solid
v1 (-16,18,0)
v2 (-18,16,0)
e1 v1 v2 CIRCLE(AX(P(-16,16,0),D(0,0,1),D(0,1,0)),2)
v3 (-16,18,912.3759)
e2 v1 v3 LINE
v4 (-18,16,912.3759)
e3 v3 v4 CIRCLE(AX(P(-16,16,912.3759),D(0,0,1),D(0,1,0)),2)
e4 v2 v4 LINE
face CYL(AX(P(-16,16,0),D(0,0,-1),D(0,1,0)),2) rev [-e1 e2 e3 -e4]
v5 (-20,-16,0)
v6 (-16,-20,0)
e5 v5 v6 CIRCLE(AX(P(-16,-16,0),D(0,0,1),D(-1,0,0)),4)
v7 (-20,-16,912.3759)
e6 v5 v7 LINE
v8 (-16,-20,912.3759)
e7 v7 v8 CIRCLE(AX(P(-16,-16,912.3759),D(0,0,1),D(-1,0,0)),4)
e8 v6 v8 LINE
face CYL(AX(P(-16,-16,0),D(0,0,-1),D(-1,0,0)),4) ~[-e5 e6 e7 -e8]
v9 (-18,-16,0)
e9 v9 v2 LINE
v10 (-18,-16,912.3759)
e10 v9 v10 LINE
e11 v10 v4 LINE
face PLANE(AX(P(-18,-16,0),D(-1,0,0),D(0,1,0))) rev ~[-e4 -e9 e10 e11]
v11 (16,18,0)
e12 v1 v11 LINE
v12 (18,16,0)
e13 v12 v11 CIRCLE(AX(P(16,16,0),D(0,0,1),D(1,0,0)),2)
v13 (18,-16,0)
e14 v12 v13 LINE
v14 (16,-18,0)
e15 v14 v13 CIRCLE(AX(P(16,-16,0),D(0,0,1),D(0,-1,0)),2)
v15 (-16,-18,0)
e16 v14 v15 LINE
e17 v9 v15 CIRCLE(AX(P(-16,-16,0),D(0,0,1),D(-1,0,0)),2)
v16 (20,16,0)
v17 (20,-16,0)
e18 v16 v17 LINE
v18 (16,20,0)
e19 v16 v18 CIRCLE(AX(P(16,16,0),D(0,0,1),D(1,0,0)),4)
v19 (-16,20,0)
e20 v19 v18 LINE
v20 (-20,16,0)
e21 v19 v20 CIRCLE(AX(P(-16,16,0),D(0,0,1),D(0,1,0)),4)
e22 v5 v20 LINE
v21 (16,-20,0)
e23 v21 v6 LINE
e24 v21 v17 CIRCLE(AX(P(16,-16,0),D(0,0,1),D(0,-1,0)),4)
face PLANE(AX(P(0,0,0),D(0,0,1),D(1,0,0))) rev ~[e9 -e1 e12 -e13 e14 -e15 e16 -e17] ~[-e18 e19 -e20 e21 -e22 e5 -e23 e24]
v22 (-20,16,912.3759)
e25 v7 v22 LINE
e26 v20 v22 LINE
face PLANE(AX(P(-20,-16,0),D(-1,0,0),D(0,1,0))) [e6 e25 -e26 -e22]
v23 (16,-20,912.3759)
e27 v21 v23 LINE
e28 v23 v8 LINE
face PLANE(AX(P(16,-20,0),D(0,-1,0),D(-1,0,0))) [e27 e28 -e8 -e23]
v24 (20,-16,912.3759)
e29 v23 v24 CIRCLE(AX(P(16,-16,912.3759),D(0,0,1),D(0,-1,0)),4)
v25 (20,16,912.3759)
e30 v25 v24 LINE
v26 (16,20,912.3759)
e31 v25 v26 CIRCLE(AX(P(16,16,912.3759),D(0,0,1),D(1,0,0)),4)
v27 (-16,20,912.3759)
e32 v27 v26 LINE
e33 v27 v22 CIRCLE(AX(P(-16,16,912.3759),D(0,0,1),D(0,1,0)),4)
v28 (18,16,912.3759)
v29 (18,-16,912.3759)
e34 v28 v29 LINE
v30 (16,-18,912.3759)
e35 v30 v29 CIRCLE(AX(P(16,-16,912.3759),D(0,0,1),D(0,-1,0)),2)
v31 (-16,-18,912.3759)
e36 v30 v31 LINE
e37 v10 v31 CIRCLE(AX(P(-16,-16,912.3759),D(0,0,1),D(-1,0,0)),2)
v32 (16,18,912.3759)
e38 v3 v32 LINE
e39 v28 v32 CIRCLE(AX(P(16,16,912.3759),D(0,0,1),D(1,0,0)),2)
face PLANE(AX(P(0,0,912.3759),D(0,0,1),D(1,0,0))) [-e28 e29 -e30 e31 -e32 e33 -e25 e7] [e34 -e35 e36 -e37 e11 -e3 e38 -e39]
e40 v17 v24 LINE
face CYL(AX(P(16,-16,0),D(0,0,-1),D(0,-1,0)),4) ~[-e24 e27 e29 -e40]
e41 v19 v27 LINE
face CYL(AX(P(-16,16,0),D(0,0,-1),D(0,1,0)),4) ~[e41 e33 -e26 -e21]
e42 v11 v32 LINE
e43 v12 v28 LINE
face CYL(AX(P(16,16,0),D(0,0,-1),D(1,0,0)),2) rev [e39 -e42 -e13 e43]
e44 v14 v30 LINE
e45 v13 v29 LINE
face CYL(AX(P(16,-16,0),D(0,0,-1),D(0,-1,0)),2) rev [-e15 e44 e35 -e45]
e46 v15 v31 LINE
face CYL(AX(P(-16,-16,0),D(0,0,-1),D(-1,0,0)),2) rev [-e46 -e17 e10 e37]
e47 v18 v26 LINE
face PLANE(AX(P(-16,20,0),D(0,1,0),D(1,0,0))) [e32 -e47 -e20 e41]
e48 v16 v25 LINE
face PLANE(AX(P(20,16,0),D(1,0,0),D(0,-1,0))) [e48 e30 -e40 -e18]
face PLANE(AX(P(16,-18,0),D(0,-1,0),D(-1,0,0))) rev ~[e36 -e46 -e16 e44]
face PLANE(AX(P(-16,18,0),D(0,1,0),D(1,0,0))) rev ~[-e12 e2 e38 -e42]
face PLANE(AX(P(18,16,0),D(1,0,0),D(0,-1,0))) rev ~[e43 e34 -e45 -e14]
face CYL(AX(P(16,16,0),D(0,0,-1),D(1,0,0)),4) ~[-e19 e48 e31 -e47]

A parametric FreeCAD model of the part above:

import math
import FreeCAD as App
import Part
import Sketcher
Q = App.Units.Quantity

doc = App.newDocument("Part")
body = doc.addObject("PartDesign::Body", "Body")

sketch1 = body.newObject("Sketcher::SketchObject", "Sketch")
sketch1.AttachmentSupport = (doc.getObject("XY_Plane"), [""])
sketch1.MapMode = "FlatFace"
sketch1.addGeometry(Part.LineSegment(App.Vector(-20, 16, 0), App.Vector(-20, -16, 0)), False)
sketch1.addGeometry(Part.ArcOfCircle(Part.Circle(App.Vector(-16, -16, 0), App.Vector(0, 0, 1), 4), math.radians(180), math.radians(270)), False)
sketch1.addGeometry(Part.LineSegment(App.Vector(-16, -20, 0), App.Vector(16, -20, 0)), False)
sketch1.addGeometry(Part.ArcOfCircle(Part.Circle(App.Vector(16, -16, 0), App.Vector(0, 0, 1), 4), math.radians(-90), math.radians(0)), False)
sketch1.addGeometry(Part.LineSegment(App.Vector(20, -16, 0), App.Vector(20, 16, 0)), False)
sketch1.addGeometry(Part.ArcOfCircle(Part.Circle(App.Vector(16, 16, 0), App.Vector(0, 0, 1), 4), math.radians(0), math.radians(90)), False)
sketch1.addGeometry(Part.LineSegment(App.Vector(16, 20, 0), App.Vector(-16, 20, 0)), False)
sketch1.addGeometry(Part.ArcOfCircle(Part.Circle(App.Vector(-16, 16, 0), App.Vector(0, 0, 1), 4), math.radians(90), math.radians(180)), False)
sketch1.addGeometry(Part.ArcOfCircle(Part.Circle(App.Vector(-16, 16, 0), App.Vector(0, 0, 1), 2), math.radians(90), math.radians(180)), False)
sketch1.addGeometry(Part.LineSegment(App.Vector(-16, 18, 0), App.Vector(16, 18, 0)), False)
sketch1.addGeometry(Part.ArcOfCircle(Part.Circle(App.Vector(16, 16, 0), App.Vector(0, 0, 1), 2), math.radians(0), math.radians(90)), False)
sketch1.addGeometry(Part.LineSegment(App.Vector(18, 16, 0), App.Vector(18, -16, 0)), False)
sketch1.addGeometry(Part.ArcOfCircle(Part.Circle(App.Vector(16, -16, 0), App.Vector(0, 0, 1), 2), math.radians(-90), math.radians(0)), False)
sketch1.addGeometry(Part.LineSegment(App.Vector(16, -18, 0), App.Vector(-16, -18, 0)), False)
sketch1.addGeometry(Part.ArcOfCircle(Part.Circle(App.Vector(-16, -16, 0), App.Vector(0, 0, 1), 2), math.radians(180), math.radians(270)), False)
sketch1.addGeometry(Part.LineSegment(App.Vector(-18, -16, 0), App.Vector(-18, 16, 0)), False)
sketch1.addConstraint(Sketcher.Constraint("Tangent", 0, 2, 1, 1))
sketch1.addConstraint(Sketcher.Constraint("Tangent", 1, 2, 2, 1))
sketch1.addConstraint(Sketcher.Constraint("Tangent", 2, 2, 3, 1))
sketch1.addConstraint(Sketcher.Constraint("Tangent", 3, 2, 4, 1))
sketch1.addConstraint(Sketcher.Constraint("Tangent", 4, 2, 5, 1))
sketch1.addConstraint(Sketcher.Constraint("Tangent", 5, 2, 6, 1))
sketch1.addConstraint(Sketcher.Constraint("Tangent", 6, 2, 7, 1))
sketch1.addConstraint(Sketcher.Constraint("Tangent", 7, 2, 0, 1))
sketch1.addConstraint(Sketcher.Constraint("Tangent", 8, 1, 9, 1))
sketch1.addConstraint(Sketcher.Constraint("Tangent", 9, 2, 10, 2))
sketch1.addConstraint(Sketcher.Constraint("Tangent", 10, 1, 11, 1))
sketch1.addConstraint(Sketcher.Constraint("Tangent", 11, 2, 12, 2))
sketch1.addConstraint(Sketcher.Constraint("Tangent", 12, 1, 13, 1))
sketch1.addConstraint(Sketcher.Constraint("Tangent", 13, 2, 14, 2))
sketch1.addConstraint(Sketcher.Constraint("Tangent", 14, 1, 15, 1))
sketch1.addConstraint(Sketcher.Constraint("Tangent", 15, 2, 8, 2))
sketch1.addConstraint(Sketcher.Constraint("Vertical", 0))
sketch1.addConstraint(Sketcher.Constraint("Horizontal", 2))
sketch1.addConstraint(Sketcher.Constraint("Vertical", 4))
sketch1.addConstraint(Sketcher.Constraint("Horizontal", 6))
sketch1.addConstraint(Sketcher.Constraint("Horizontal", 9))
sketch1.addConstraint(Sketcher.Constraint("Vertical", 11))
sketch1.addConstraint(Sketcher.Constraint("Horizontal", 13))
sketch1.addConstraint(Sketcher.Constraint("Vertical", 15))
sketch1.addConstraint(Sketcher.Constraint("Coincident", 8, 3, 7, 3))
sketch1.addConstraint(Sketcher.Constraint("Coincident", 10, 3, 5, 3))
sketch1.addConstraint(Sketcher.Constraint("Coincident", 12, 3, 3, 3))
sketch1.addConstraint(Sketcher.Constraint("Equal", 1, 3))
sketch1.addConstraint(Sketcher.Constraint("Equal", 3, 5))
sketch1.addConstraint(Sketcher.Constraint("Equal", 5, 7))
sketch1.addConstraint(Sketcher.Constraint("Equal", 12, 14))
sketch1.addConstraint(Sketcher.Constraint("Symmetric", 1, 3, 5, 3, -1, 1))
sketch1.addConstraint(Sketcher.Constraint("Equal", 13, 0))
sketch1.addConstraint(Sketcher.Constraint("Radius", 1, Q("4 mm")))
sketch1.addConstraint(Sketcher.Constraint("Radius", 8, Q("2 mm")))
sketch1.addConstraint(Sketcher.Constraint("DistanceX", 0, 2, -1, 1, Q("20 mm")))
pad1 = body.newObject("PartDesign::Pad", "Pad")
pad1.Profile = sketch1
pad1.Length = 912.3759

doc.recompute()
